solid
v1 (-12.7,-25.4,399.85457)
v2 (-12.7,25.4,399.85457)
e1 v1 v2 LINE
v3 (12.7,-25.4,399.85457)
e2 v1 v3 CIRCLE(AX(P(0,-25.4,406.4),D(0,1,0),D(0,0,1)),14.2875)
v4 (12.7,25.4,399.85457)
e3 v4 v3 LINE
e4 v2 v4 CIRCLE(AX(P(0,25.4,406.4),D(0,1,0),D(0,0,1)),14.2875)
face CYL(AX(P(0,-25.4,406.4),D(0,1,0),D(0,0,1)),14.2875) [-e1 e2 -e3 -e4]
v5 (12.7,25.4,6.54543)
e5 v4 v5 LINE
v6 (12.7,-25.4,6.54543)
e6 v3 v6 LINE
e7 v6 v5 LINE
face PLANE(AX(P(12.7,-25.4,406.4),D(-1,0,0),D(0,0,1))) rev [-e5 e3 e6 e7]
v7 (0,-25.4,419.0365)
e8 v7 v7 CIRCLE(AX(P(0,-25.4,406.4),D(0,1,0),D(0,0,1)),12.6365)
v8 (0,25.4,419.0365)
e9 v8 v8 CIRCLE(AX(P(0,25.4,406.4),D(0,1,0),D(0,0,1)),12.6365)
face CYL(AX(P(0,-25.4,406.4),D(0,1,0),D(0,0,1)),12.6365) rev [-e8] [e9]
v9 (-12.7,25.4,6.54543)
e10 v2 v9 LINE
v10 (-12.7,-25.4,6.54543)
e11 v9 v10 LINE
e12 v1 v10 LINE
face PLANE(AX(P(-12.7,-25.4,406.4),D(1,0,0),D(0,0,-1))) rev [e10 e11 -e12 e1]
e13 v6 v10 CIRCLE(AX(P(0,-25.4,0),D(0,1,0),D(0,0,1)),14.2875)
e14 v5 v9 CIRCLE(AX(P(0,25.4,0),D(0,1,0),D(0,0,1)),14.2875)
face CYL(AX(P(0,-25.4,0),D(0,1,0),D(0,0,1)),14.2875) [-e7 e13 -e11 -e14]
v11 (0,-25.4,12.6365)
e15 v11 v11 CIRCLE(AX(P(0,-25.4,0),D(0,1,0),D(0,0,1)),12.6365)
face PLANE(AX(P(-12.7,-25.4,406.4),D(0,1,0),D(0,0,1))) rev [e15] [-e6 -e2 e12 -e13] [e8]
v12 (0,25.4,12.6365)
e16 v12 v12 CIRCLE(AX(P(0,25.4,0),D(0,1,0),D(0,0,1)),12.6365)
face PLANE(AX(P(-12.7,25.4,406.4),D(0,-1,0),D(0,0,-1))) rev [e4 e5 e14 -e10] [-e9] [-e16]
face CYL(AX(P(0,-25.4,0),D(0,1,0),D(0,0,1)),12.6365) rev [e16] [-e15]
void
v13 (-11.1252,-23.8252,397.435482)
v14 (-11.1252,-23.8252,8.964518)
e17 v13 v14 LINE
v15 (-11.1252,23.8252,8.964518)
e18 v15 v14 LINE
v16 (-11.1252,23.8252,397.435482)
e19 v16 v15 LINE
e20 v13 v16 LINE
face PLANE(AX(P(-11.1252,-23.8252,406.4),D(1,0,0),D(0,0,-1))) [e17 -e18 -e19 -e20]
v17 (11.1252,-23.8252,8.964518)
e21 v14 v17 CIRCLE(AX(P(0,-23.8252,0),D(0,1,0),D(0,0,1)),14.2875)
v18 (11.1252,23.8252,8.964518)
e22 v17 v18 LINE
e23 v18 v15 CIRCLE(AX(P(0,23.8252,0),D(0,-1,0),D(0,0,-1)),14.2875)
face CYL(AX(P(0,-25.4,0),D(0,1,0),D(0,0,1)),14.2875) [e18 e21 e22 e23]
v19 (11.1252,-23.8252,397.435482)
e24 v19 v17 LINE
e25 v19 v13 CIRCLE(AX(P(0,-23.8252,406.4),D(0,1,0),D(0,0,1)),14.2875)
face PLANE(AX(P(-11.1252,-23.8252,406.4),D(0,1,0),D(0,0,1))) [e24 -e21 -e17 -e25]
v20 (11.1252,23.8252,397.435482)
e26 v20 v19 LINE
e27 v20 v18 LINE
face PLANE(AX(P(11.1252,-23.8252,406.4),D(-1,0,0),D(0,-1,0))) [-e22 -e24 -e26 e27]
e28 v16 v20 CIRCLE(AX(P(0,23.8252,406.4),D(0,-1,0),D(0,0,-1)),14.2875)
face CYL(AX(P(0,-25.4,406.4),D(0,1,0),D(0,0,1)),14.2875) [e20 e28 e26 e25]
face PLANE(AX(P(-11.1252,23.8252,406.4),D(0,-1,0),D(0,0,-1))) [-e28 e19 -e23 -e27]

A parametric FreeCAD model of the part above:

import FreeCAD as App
import Part
import Sketcher

V = App.Vector
Q = App.Units.Quantity

doc = App.newDocument("Part")
body = doc.addObject("PartDesign::Body", "Body")

# Sketch on XY plane
sketch1 = body.newObject("Sketcher::SketchObject", "Sketch")
sketch1.AttachmentSupport = (doc.getObject("XY_Plane"), [""])
sketch1.MapMode = "FlatFace"
sketch1.addGeometry([
    Part.LineSegment(V(-13, 25, 0), V(-13, -25, 0)),  # 0
    Part.LineSegment(V(-13, -25, 0), V(13, -25, 0)),  # 1
    Part.LineSegment(V(13, -25, 0), V(13, 25, 0)),  # 2
    Part.LineSegment(V(13, 25, 0), V(-13, 25, 0)),  # 3
    Part.LineSegment(V(11, -24, 0), V(-11, -24, 0)),  # 4
    Part.LineSegment(V(-11, -24, 0), V(-11, 24, 0)),  # 5
    Part.LineSegment(V(-11, 24, 0), V(11, 24, 0)),  # 6
    Part.LineSegment(V(11, 24, 0), V(11, -24, 0)),  # 7
], False)
sketch1.addConstraint([
    Sketcher.Constraint("Coincident", 0, 2, 1, 1),
    Sketcher.Constraint("Coincident", 1, 2, 2, 1),
    Sketcher.Constraint("Coincident", 2, 2, 3, 1),
    Sketcher.Constraint("Coincident", 3, 2, 0, 1),
    Sketcher.Constraint("Coincident", 4, 2, 5, 1),
    Sketcher.Constraint("Coincident", 5, 2, 6, 1),
    Sketcher.Constraint("Coincident", 6, 2, 7, 1),
    Sketcher.Constraint("Coincident", 7, 2, 4, 1),
    Sketcher.Constraint("Vertical", 0),
    Sketcher.Constraint("Horizontal", 1),
    Sketcher.Constraint("Vertical", 2),
    Sketcher.Constraint("Horizontal", 3),
    Sketcher.Constraint("Horizontal", 4),
    Sketcher.Constraint("Vertical", 5),
    Sketcher.Constraint("Horizontal", 6),
    Sketcher.Constraint("Vertical", 7),
    Sketcher.Constraint("Symmetric", 0, 2, 2, 2, -1, 1),
    Sketcher.Constraint("Symmetric", 4, 2, 6, 2, -1, 1),
    Sketcher.Constraint("DistanceX", 1, 1, 1, 2, Q("1 in")),
    Sketcher.Constraint("DistanceY", 0, 2, 0, 1, Q("2 in")),
    Sketcher.Constraint("DistanceX", 4, 2, 4, 1, Q("0.876 in")),
    Sketcher.Constraint("DistanceY", 5, 1, 5, 2, Q("1.876 in")),
])
pad1 = body.newObject("PartDesign::Pad", "Pad")
pad1.Profile = sketch1
pad1.Length = Q("16 in")

# Sketch on XZ plane
sketch2 = body.newObject("Sketcher::SketchObject", "Sketch001")
sketch2.AttachmentSupport = (doc.getObject("XZ_Plane"), [""])
sketch2.MapMode = "FlatFace"
sketch2.AttachmentOffset = App.Placement(V(0, 0, -1 * 25.4), App.Rotation())
sketch2.addGeometry([
    Part.Circle(V(0, 0, 0), V(0, 0, 1), 14),
    Part.Circle(V(0, 406, 0), V(0, 0, 1), 14),
], False)
sketch2.addConstraint([
    Sketcher.Constraint("Coincident", 0, 3, -1, 1),
    Sketcher.Constraint("Equal", 0, 1),
    Sketcher.Constraint("PointOnObject", 1, 3, -2),
    Sketcher.Constraint("Diameter", 0, Q("1.125 in")),
    Sketcher.Constraint("DistanceY", -1, 1, 1, 3, Q("16 in")),
])
pocket1 = body.newObject("PartDesign::Pocket", "Pocket")
pocket1.Profile = sketch2
pocket1.Type = "ThroughAll"
pocket1.Reversed = True

# Sketch on XZ plane
sketch3 = body.newObject("Sketcher::SketchObject", "Sketch002")
sketch3.AttachmentSupport = (doc.getObject("XZ_Plane"), [""])
sketch3.MapMode = "FlatFace"
sketch3.AttachmentOffset = App.Placement(V(0, 0, -1 * 25.4), App.Rotation())
sketch3.addGeometry([
    Part.Circle(V(0, 0, 0), V(0, 0, 1), 14),
    Part.Circle(V(0, 0, 0), V(0, 0, 1), 13),
    Part.Circle(V(0, 406, 0), V(0, 0, 1), 14),
    Part.Circle(V(0, 406, 0), V(0, 0, 1), 13),
], False)
sketch3.addConstraint([
    Sketcher.Constraint("Coincident", 0, 3, -1, 1),
    Sketcher.Constraint("Coincident", 1, 3, -1, 1),
    Sketcher.Constraint("Coincident", 3, 3, 2, 3),
    Sketcher.Constraint("Equal", 0, 2),
    Sketcher.Constraint("Equal", 1, 3),
    Sketcher.Constraint("PointOnObject", 2, 3, -2),
    Sketcher.Constraint("Diameter", 0, Q("1.125 in")),
    Sketcher.Constraint("Diameter", 1, Q("0.995 in")),
    Sketcher.Constraint("DistanceY", -1, 1, 2, 3, Q("16 in")),
])
pad2 = body.newObject("PartDesign::Pad", "Pad001")
pad2.Profile = sketch3
pad2.Length = Q("2 in")

doc.recompute()
